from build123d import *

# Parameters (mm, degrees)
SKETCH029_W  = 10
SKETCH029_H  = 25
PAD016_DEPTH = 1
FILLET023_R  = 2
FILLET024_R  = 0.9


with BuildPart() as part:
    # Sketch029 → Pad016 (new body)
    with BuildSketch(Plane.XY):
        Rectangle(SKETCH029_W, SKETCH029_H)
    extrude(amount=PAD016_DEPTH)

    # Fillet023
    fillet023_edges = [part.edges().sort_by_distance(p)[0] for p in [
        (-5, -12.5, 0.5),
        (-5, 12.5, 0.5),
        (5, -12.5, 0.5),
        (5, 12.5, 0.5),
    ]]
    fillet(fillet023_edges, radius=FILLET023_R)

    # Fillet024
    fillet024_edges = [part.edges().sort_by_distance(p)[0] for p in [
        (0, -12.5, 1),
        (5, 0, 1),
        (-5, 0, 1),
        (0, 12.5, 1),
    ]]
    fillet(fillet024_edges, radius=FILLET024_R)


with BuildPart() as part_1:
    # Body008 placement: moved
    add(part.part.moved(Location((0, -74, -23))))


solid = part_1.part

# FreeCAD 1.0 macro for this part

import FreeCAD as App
import Part
import Sketcher

V = App.Vector


def edges_at(feature, points):
    """Names of the edges that pass closest to the given points."""
    edges = feature.Shape.Edges
    near = lambda p: min(range(len(edges)), key=lambda i: edges[i].distToShape(Part.Vertex(*p))[0])
    return sorted({f"Edge{near(p) + 1}" for p in points})

doc = App.newDocument("Part")
body = doc.addObject("PartDesign::Body", "Body")

# Sketch on XY plane
sketch1 = doc.addObject("Sketcher::SketchObject", "Sketch")
body.addObject(sketch1)
sketch1.AttachmentSupport = (doc.XY_Plane, [""])
sketch1.MapMode = "FlatFace"
sketch1.addGeometry(Part.LineSegment(V(-5, 12, 0), V(-5, -12, 0)), False)
sketch1.addGeometry(Part.LineSegment(V(-5, -12, 0), V(5, -12, 0)), False)
sketch1.addGeometry(Part.LineSegment(V(5, -12, 0), V(5, 12, 0)), False)
sketch1.addGeometry(Part.LineSegment(V(5, 12, 0), V(-5, 12, 0)), False)
sketch1.addConstraint(Sketcher.Constraint("Coincident", 0, 2, 1, 1))
sketch1.addConstraint(Sketcher.Constraint("Coincident", 1, 2, 2, 1))
sketch1.addConstraint(Sketcher.Constraint("Coincident", 2, 2, 3, 1))
sketch1.addConstraint(Sketcher.Constraint("Coincident", 3, 2, 0, 1))
sketch1.addConstraint(Sketcher.Constraint("Vertical", 0))
sketch1.addConstraint(Sketcher.Constraint("Horizontal", 1))
sketch1.addConstraint(Sketcher.Constraint("Vertical", 2))
sketch1.addConstraint(Sketcher.Constraint("Horizontal", 3))
sketch1.addConstraint(Sketcher.Constraint("Symmetric", 0, 2, 2, 2, -1, 1))
sketch1.addConstraint(Sketcher.Constraint("DistanceX", 1, 1, 1, 2, 10.0))
sketch1.addConstraint(Sketcher.Constraint("DistanceY", 0, 2, 0, 1, 25.0))
pad1 = doc.addObject("PartDesign::Pad", "Pad")
body.addObject(pad1)
pad1.Profile = sketch1
pad1.Length = 1
doc.recompute()

fillet = doc.addObject("PartDesign::Fillet", "Fillet")
body.addObject(fillet)
fillet.Base = (pad1, edges_at(pad1, [
    (-5, -12.5, 0.5),
    (-5, 12.5, 0.5),
    (5, -12.5, 0.5),
    (5, 12.5, 0.5),
]))
fillet.Radius = 2
doc.recompute()

fillet2 = doc.addObject("PartDesign::Fillet", "Fillet001")
body.addObject(fillet2)
fillet2.Base = (fillet, edges_at(fillet, [
    (0, -12.5, 1),
    (5, 0, 1),
    (-5, 0, 1),
    (0, 12.5, 1),
]))
fillet2.Radius = 0.9
body2 = doc.addObject("PartDesign::Body", "Body001")
doc.recompute()

body.Placement = App.Placement(V(0, -74, -23), App.Rotation(V(0, 0, 1), 0))
boolean = doc.addObject("PartDesign::Boolean", "Boolean")
body2.addObject(boolean)
boolean.Type = "Fuse"
boolean.addObjects([body])

doc.recompute()
